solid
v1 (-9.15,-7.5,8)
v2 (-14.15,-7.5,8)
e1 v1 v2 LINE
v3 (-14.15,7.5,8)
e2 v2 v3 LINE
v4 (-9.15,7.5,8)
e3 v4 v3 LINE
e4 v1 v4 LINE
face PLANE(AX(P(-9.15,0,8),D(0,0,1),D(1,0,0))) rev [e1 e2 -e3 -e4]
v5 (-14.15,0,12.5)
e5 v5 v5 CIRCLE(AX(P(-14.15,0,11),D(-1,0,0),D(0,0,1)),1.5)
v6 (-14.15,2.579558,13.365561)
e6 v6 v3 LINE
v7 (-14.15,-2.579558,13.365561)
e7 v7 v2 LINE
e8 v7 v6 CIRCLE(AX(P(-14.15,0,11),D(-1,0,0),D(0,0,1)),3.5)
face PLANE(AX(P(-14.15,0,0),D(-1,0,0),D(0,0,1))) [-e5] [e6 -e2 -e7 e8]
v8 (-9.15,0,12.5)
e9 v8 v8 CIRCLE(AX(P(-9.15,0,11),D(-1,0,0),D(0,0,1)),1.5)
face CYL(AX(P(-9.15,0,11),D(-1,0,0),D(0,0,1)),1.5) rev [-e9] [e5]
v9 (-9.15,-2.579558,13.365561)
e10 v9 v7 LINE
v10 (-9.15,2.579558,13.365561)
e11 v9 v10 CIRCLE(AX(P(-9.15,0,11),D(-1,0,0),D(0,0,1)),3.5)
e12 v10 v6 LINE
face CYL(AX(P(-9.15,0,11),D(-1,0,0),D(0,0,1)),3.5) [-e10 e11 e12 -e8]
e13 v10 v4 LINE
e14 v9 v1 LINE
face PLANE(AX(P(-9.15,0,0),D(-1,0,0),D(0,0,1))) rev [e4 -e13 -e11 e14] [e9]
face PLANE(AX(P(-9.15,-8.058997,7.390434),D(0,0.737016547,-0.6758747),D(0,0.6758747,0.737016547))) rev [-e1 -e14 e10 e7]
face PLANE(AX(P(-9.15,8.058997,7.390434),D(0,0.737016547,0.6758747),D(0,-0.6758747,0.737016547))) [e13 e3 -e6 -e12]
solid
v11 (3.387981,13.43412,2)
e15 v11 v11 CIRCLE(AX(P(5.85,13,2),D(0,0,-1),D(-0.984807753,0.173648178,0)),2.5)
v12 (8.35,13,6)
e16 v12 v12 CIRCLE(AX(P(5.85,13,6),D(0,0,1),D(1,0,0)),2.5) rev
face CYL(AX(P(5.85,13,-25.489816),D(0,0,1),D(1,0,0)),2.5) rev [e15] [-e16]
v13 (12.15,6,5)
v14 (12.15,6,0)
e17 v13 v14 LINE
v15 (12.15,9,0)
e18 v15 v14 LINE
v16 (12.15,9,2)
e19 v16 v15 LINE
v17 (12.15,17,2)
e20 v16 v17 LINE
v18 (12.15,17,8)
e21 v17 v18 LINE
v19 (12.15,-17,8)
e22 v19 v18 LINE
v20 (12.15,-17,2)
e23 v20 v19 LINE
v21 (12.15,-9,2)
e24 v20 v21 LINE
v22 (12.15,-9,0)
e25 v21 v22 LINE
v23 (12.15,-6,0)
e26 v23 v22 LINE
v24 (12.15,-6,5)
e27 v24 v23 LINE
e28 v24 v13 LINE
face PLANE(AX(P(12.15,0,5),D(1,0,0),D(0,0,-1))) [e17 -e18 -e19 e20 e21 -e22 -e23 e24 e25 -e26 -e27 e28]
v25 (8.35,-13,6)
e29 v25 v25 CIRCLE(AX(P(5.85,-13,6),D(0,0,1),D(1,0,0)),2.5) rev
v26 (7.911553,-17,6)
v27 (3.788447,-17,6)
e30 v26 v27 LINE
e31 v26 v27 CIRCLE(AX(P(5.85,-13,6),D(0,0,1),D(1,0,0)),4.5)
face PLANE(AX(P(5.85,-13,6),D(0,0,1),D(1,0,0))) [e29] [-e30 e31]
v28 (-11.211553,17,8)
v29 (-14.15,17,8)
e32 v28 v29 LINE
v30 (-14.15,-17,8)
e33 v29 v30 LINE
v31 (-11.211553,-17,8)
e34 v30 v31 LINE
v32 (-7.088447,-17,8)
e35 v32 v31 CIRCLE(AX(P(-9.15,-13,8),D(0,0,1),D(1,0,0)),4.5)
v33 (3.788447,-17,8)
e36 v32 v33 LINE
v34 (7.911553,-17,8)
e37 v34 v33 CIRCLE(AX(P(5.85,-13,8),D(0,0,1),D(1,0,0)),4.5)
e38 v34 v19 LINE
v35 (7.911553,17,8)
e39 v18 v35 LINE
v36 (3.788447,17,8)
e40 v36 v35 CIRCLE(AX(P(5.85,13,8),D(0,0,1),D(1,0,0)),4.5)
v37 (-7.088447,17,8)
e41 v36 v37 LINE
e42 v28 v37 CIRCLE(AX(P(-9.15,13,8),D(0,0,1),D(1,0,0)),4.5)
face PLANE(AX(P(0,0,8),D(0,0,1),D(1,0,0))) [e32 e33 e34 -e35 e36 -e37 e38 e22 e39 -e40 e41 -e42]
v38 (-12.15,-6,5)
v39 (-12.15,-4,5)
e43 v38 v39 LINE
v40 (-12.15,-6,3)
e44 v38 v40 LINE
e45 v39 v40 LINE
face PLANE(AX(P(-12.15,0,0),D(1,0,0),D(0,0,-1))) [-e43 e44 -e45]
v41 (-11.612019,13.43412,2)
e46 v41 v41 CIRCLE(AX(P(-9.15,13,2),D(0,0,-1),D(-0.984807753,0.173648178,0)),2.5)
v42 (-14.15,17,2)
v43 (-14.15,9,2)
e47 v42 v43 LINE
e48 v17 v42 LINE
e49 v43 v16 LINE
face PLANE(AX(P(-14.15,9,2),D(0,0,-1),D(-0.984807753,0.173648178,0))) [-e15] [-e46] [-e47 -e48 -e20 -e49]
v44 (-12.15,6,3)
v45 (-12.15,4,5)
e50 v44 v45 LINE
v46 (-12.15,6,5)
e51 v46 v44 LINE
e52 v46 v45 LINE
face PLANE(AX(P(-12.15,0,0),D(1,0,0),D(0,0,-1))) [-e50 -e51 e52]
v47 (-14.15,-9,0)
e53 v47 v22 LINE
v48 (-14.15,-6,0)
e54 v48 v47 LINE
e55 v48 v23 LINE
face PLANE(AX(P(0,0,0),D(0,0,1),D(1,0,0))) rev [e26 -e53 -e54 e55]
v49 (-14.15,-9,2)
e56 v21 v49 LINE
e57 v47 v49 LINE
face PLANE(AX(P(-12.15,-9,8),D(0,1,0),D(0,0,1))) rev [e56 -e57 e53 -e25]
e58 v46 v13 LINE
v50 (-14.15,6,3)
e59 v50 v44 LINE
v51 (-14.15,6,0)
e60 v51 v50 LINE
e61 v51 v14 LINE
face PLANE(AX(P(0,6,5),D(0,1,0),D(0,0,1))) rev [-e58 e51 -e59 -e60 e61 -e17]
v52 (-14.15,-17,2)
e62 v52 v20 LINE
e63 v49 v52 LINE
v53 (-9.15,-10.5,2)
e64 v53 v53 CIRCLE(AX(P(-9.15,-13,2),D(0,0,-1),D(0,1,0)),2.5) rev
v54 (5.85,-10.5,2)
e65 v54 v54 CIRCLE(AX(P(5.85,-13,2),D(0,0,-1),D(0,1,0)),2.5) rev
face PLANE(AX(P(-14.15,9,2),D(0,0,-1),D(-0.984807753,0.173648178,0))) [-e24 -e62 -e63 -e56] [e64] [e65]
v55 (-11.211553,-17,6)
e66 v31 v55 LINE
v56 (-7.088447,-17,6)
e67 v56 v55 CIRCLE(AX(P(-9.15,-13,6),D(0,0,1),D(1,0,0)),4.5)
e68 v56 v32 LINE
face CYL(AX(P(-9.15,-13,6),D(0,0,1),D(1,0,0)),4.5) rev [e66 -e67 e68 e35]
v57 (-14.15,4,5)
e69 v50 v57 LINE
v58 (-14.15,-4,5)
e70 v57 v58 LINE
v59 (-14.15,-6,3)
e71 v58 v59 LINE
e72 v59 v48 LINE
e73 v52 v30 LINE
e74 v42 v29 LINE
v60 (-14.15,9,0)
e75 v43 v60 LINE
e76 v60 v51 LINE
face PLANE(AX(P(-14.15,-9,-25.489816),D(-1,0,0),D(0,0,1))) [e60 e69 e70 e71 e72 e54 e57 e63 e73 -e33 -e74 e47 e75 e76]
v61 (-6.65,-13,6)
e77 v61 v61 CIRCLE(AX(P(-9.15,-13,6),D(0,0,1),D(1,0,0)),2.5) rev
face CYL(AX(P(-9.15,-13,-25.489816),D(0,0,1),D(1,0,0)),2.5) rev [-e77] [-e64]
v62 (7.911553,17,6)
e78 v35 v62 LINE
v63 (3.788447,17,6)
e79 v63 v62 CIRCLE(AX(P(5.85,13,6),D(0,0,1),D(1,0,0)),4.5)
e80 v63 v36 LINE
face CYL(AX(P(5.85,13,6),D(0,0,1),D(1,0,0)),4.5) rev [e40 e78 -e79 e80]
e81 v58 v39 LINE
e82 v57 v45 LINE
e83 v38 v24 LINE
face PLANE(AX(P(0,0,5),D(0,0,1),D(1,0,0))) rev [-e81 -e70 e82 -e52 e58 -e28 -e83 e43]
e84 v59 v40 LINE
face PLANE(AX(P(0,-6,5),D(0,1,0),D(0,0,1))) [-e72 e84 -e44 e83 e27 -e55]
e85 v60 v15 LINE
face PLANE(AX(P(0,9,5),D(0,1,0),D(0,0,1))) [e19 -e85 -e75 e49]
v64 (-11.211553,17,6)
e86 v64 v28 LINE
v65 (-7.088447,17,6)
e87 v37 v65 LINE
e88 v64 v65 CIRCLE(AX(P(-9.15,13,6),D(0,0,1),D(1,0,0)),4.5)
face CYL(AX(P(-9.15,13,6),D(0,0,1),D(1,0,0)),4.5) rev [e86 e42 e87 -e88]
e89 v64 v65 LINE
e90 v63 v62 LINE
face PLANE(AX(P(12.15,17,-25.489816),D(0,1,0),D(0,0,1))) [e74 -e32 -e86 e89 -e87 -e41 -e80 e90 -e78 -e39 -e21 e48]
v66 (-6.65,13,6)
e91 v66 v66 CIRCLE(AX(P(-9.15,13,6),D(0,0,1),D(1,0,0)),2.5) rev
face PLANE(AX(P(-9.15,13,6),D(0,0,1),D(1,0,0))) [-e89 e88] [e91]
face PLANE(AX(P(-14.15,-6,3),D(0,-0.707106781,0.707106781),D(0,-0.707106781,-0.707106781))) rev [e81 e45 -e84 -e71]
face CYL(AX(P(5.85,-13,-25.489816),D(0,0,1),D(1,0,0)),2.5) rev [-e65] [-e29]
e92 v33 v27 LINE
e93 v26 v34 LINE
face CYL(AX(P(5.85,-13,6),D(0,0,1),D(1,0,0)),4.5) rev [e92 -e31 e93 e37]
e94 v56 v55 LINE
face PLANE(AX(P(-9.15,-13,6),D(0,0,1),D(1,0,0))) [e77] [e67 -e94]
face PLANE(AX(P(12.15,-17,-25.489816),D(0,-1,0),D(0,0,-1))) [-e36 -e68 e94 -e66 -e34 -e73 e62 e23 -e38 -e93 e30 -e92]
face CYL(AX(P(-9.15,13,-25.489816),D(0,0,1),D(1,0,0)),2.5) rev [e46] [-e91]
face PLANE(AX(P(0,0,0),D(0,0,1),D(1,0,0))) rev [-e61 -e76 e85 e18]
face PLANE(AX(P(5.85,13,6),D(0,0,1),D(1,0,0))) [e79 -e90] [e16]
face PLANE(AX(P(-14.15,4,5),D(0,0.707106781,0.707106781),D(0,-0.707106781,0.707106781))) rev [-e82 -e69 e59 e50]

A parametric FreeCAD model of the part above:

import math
import FreeCAD as App
import Part
import Sketcher
from FreeCAD import Vector
Q = App.Units.Quantity

doc = App.newDocument("Part")
body = doc.addObject("PartDesign::Body", "Body")

# Sketch on XY plane
sketch1 = body.newObject("Sketcher::SketchObject", "Sketch")
sketch1.AttachmentSupport = (doc.getObject("XY_Plane"), [""])
sketch1.MapMode = "FlatFace"
sketch1.addGeometry([
    Part.LineSegment(Vector(-12.2, 9, 0), Vector(-12.2, 6, 0)),
    Part.LineSegment(Vector(-12.2, 6, 0), Vector(12.2, 6, 0)),
    Part.LineSegment(Vector(12.2, 6, 0), Vector(12.2, 9, 0)),
    Part.LineSegment(Vector(12.2, 9, 0), Vector(-12.2, 9, 0)),
], False)
sketch1.addConstraint([
    Sketcher.Constraint("Coincident", 0, 2, 1, 1),
    Sketcher.Constraint("Coincident", 1, 2, 2, 1),
    Sketcher.Constraint("Coincident", 2, 2, 3, 1),
    Sketcher.Constraint("Coincident", 3, 2, 0, 1),
    Sketcher.Constraint("Vertical", 0),
    Sketcher.Constraint("Horizontal", 1),
    Sketcher.Constraint("Vertical", 2),
    Sketcher.Constraint("Horizontal", 3),
    Sketcher.Constraint("DistanceY", 0, 2, 0, 1, Q("3 mm")),
    Sketcher.Constraint("DistanceX", 1, 1, 1, 2, Q("24.3 mm")),
    Sketcher.Constraint("DistanceY", -1, 1, 0, 2, Q("6 mm")),
    Sketcher.Constraint("DistanceX", 0, 2, -1, 1, Q("12.15 mm")),
])
pad1 = body.newObject("PartDesign::Pad", "Pad")
pad1.Profile = sketch1
pad1.Length = 5
body2 = doc.addObject("PartDesign::Body", "Body001")

# Sketch on XY plane
sketch2 = body2.newObject("Sketcher::SketchObject", "Sketch001")
sketch2.AttachmentSupport = (doc.getObject("XY_Plane001"), [""])
sketch2.MapMode = "FlatFace"
sketch2.addGeometry([
    Part.LineSegment(Vector(-12.2, -6, 0), Vector(-12.2, -9, 0)),
    Part.LineSegment(Vector(-12.2, -9, 0), Vector(12.2, -9, 0)),
    Part.LineSegment(Vector(12.2, -9, 0), Vector(12.2, -6, 0)),
    Part.LineSegment(Vector(12.2, -6, 0), Vector(-12.2, -6, 0)),
], False)
sketch2.addConstraint([
    Sketcher.Constraint("Coincident", 0, 2, 1, 1),
    Sketcher.Constraint("Coincident", 1, 2, 2, 1),
    Sketcher.Constraint("Coincident", 2, 2, 3, 1),
    Sketcher.Constraint("Coincident", 3, 2, 0, 1),
    Sketcher.Constraint("Vertical", 0),
    Sketcher.Constraint("Horizontal", 1),
    Sketcher.Constraint("Vertical", 2),
    Sketcher.Constraint("Horizontal", 3),
    Sketcher.Constraint("DistanceY", 0, 2, 0, 1, Q("3 mm")),
    Sketcher.Constraint("DistanceX", 1, 1, 1, 2, Q("24.3 mm")),
    Sketcher.Constraint("DistanceY", 0, 2, -1, 1, Q("9 mm")),
    Sketcher.Constraint("DistanceX", 0, 2, -1, 1, Q("12.15 mm")),
])
pad2 = body2.newObject("PartDesign::Pad", "Pad001")
pad2.Profile = sketch2
pad2.Length = 5
body.AllowCompound = True
doc.recompute()

boolean = body.newObject("PartDesign::Boolean", "Boolean")
boolean.Type = "Fuse"
boolean.addObjects([body2])

# Sketch on XY plane
sketch3 = body.newObject("Sketcher::SketchObject", "Sketch002")
sketch3.AttachmentSupport = (doc.getObject("XY_Plane"), [""])
sketch3.MapMode = "FlatFace"
sketch3.AttachmentOffset = App.Placement(Vector(0, 0, 5), App.Rotation())
sketch3.addGeometry([
    Part.LineSegment(Vector(-12, 9, 0), Vector(-12, -9, 0)),
    Part.LineSegment(Vector(-12, -9, 0), Vector(12, -9, 0)),
    Part.LineSegment(Vector(12, -9, 0), Vector(12, 9, 0)),
    Part.LineSegment(Vector(12, 9, 0), Vector(-12, 9, 0)),
], False)
sketch3.addConstraint([
    Sketcher.Constraint("Coincident", 0, 2, 1, 1),
    Sketcher.Constraint("Coincident", 1, 2, 2, 1),
    Sketcher.Constraint("Coincident", 2, 2, 3, 1),
    Sketcher.Constraint("Coincident", 3, 2, 0, 1),
    Sketcher.Constraint("Vertical", 0),
    Sketcher.Constraint("Horizontal", 1),
    Sketcher.Constraint("Vertical", 2),
    Sketcher.Constraint("Horizontal", 3),
    Sketcher.Constraint("Symmetric", 0, 2, 2, 2, -1, 1),
    Sketcher.Constraint("DistanceY", 0, 2, 0, 1, Q("18 mm")),
    Sketcher.Constraint("DistanceX", 1, 1, 1, 2, Q("24.3 mm")),
])
pad3 = body.newObject("PartDesign::Pad", "Pad002")
pad3.Profile = sketch3
pad3.Length = 3
body3 = doc.addObject("PartDesign::Body", "Body002")

# Sketch on YZ plane
sketch4 = body3.newObject("Sketcher::SketchObject", "Sketch003")
sketch4.AttachmentSupport = (doc.getObject("YZ_Plane002"), [""])
sketch4.MapMode = "FlatFace"
sketch4.AttachmentOffset = App.Placement(Vector(0, 0, -12.15), App.Rotation())
sketch4.addGeometry([
    Part.LineSegment(Vector(-6, 0, 0), Vector(-9, 0, 0)),  # 0
    Part.LineSegment(Vector(-9, 0, 0), Vector(-9, 8, 0)),  # 1
    Part.LineSegment(Vector(-9, 8, 0), Vector(9, 8, 0)),  # 2
    Part.LineSegment(Vector(9, 8, 0), Vector(9, 0, 0)),  # 3
    Part.LineSegment(Vector(9, 0, 0), Vector(6, 0, 0)),  # 4
    Part.LineSegment(Vector(6, 0, 0), Vector(6, 3, 0)),  # 5
    Part.LineSegment(Vector(6, 3, 0), Vector(4, 5, 0)),  # 6
    Part.LineSegment(Vector(4, 5, 0), Vector(-4, 5, 0)),  # 7
    Part.LineSegment(Vector(-4, 5, 0), Vector(-6, 3, 0)),  # 8
    Part.LineSegment(Vector(-6, 3, 0), Vector(-6, 0, 0)),  # 9
], False)
sketch4.addConstraint([
    Sketcher.Constraint("Coincident", 0, 2, 1, 1),
    Sketcher.Constraint("Coincident", 1, 2, 2, 1),
    Sketcher.Constraint("Coincident", 2, 2, 3, 1),
    Sketcher.Constraint("Coincident", 3, 2, 4, 1),
    Sketcher.Constraint("Coincident", 4, 2, 5, 1),
    Sketcher.Constraint("Coincident", 5, 2, 6, 1),
    Sketcher.Constraint("Coincident", 6, 2, 7, 1),
    Sketcher.Constraint("Coincident", 7, 2, 8, 1),
    Sketcher.Constraint("Coincident", 8, 2, 9, 1),
    Sketcher.Constraint("Coincident", 9, 2, 0, 1),
    Sketcher.Constraint("Horizontal", 0),
    Sketcher.Constraint("Vertical", 1),
    Sketcher.Constraint("Horizontal", 2),
    Sketcher.Constraint("Vertical", 3),
    Sketcher.Constraint("Horizontal", 4),
    Sketcher.Constraint("Vertical", 5),
    Sketcher.Constraint("Horizontal", 7),
    Sketcher.Constraint("Vertical", 9),
    Sketcher.Constraint("Symmetric", 0, 2, 3, 2, -1, 1),
    Sketcher.Constraint("Symmetric", 5, 2, 8, 2, -2),
    Sketcher.Constraint("PointOnObject", 0, 2, -1),
    Sketcher.Constraint("Perpendicular", 6, 8),
    Sketcher.Constraint("Equal", 7, 1),
    Sketcher.Constraint("Equal", 4, 5),
    Sketcher.Constraint("Equal", 6, 8),
    Sketcher.Constraint("DistanceX", 0, 2, 0, 1, Q("3 mm")),
    Sketcher.Constraint("DistanceX", 2, 1, 2, 2, Q("18 mm")),
    Sketcher.Constraint("DistanceX", 7, 2, 7, 1, Q("8 mm")),
])
pad4 = body3.newObject("PartDesign::Pad", "Pad003")
pad4.Profile = sketch4
pad4.Length = 2
pad4.Reversed = True
doc.recompute()

boolean2 = body.newObject("PartDesign::Boolean", "Boolean001")
boolean2.Type = "Fuse"
boolean2.addObjects([body3])

# Sketch on XY plane
sketch5 = body.newObject("Sketcher::SketchObject", "Sketch004")
sketch5.AttachmentSupport = (doc.getObject("XY_Plane"), [""])
sketch5.MapMode = "FlatFace"
sketch5.AttachmentOffset = App.Placement(Vector(0, 0, 8), App.Rotation())
sketch5.addGeometry([
    Part.LineSegment(Vector(-14.2, -9, 0), Vector(-14.2, -17, 0)),  # 0
    Part.LineSegment(Vector(-14.2, -17, 0), Vector(12.2, -17, 0)),  # 1
    Part.LineSegment(Vector(12.2, -17, 0), Vector(12.2, -9, 0)),  # 2
    Part.LineSegment(Vector(12.2, -9, 0), Vector(-14.2, -9, 0)),  # 3
    Part.Circle(Vector(-9.2, -13, 0), Vector(0, 0, 1), 2.5),  # 4
    Part.Circle(Vector(5.8, -13, 0), Vector(0, 0, 1), 2.5),  # 5
    Part.LineSegment(Vector(-14.2, 17, 0), Vector(-14.2, 9, 0)),  # 6
    Part.LineSegment(Vector(-14.2, 9, 0), Vector(12.2, 9, 0)),  # 7
    Part.LineSegment(Vector(12.2, 9, 0), Vector(12.2, 17, 0)),  # 8
    Part.LineSegment(Vector(12.2, 17, 0), Vector(-14.2, 17, 0)),  # 9
    Part.Circle(Vector(-9.2, 13, 0), Vector(0, 0, 1), 2.5),  # 10
    Part.Circle(Vector(5.8, 13, 0), Vector(0, 0, 1), 2.5),  # 11
], False)
sketch5.addConstraint([
    Sketcher.Constraint("Coincident", 0, 2, 1, 1),
    Sketcher.Constraint("Coincident", 1, 2, 2, 1),
    Sketcher.Constraint("Coincident", 2, 2, 3, 1),
    Sketcher.Constraint("Coincident", 3, 2, 0, 1),
    Sketcher.Constraint("Coincident", 6, 2, 7, 1),
    Sketcher.Constraint("Coincident", 7, 2, 8, 1),
    Sketcher.Constraint("Coincident", 8, 2, 9, 1),
    Sketcher.Constraint("Coincident", 9, 2, 6, 1),
    Sketcher.Constraint("Vertical", 0),
    Sketcher.Constraint("Horizontal", 1),
    Sketcher.Constraint("Vertical", 2),
    Sketcher.Constraint("Horizontal", 3),
    Sketcher.Constraint("Vertical", 6),
    Sketcher.Constraint("Horizontal", 7),
    Sketcher.Constraint("Vertical", 8),
    Sketcher.Constraint("Horizontal", 9),
    Sketcher.Constraint("Equal", 4, 5),
    Sketcher.Constraint("Equal", 5, 10),
    Sketcher.Constraint("Equal", 10, 11),
    Sketcher.Constraint("Symmetric", 4, 3, 10, 3, -1),
    Sketcher.Constraint("Symmetric", 5, 3, 11, 3, -1),
    Sketcher.Constraint("Symmetric", 3, 2, 6, 2, -1),
    Sketcher.Constraint("Symmetric", 1, 2, 8, 2, -1),
    Sketcher.Constraint("Horizontal", 4, 3, 5, 3),
    Sketcher.Constraint("Diameter", 4, Q("5 mm")),
    Sketcher.Constraint("DistanceY", 0, 2, 0, 1, Q("8 mm")),
    Sketcher.Constraint("DistanceX", 1, 1, 1, 2, Q("26.3 mm")),
    Sketcher.Constraint("DistanceY", 4, 3, -1, 1, Q("13 mm")),
    Sketcher.Constraint("DistanceY", 0, 2, -1, 1, Q("17 mm")),
    Sketcher.Constraint("DistanceX", 4, 3, 5, 3, Q("15 mm")),
    Sketcher.Constraint("DistanceX", 0, 2, 4, 3, Q("5 mm")),
    Sketcher.Constraint("DistanceX", 4, 3, -1, 1, Q("9.15 mm")),
])
pad5 = body.newObject("PartDesign::Pad", "Pad004")
pad5.Profile = sketch5
pad5.Length = 6
pad5.Reversed = True

# Sketch on XY plane
sketch6 = body.newObject("Sketcher::SketchObject", "Sketch005")
sketch6.AttachmentSupport = (doc.getObject("XY_Plane"), [""])
sketch6.MapMode = "FlatFace"
sketch6.AttachmentOffset = App.Placement(Vector(0, 0, 8), App.Rotation())
sketch6.addGeometry([
    Part.Circle(Vector(5.8, 13, 0), Vector(0, 0, 1), 4.5),
    Part.Circle(Vector(5.8, -13, 0), Vector(0, 0, 1), 4.5),
    Part.Circle(Vector(-9.2, -13, 0), Vector(0, 0, 1), 4.5),
    Part.Circle(Vector(-9.2, 13, 0), Vector(0, 0, 1), 4.5),
], False)
sketch6.addConstraint([
    Sketcher.Constraint("Equal", 0, 1),
    Sketcher.Constraint("Equal", 1, 2),
    Sketcher.Constraint("Equal", 2, 3),
    Sketcher.Constraint("Symmetric", 0, 3, 1, 3, -1),
    Sketcher.Constraint("Symmetric", 2, 3, 3, 3, -1),
    Sketcher.Constraint("Horizontal", 1, 3, 2, 3),
    Sketcher.Constraint("Diameter", 0, Q("9 mm")),
    Sketcher.Constraint("DistanceY", -1, 1, 0, 3, Q("13 mm")),
    Sketcher.Constraint("DistanceX", 2, 3, 1, 3, Q("15 mm")),
    Sketcher.Constraint("DistanceX", -1, 1, 0, 3, Q("5.85 mm")),
])
pocket1 = body.newObject("PartDesign::Pocket", "Pocket")
pocket1.Profile = sketch6
pocket1.Length = 2
body4 = doc.addObject("PartDesign::Body", "Body003")

# Sketch on YZ plane
sketch7 = body4.newObject("Sketcher::SketchObject", "Sketch006")
sketch7.AttachmentSupport = (doc.getObject("YZ_Plane003"), [""])
sketch7.MapMode = "FlatFace"
sketch7.AttachmentOffset = App.Placement(Vector(0, 0, -14.15), App.Rotation())
sketch7.addGeometry([
    Part.LineSegment(Vector(-7.5, 8, 0), Vector(-2.6, 13.4, 0)),  # 0
    Part.ArcOfCircle(Part.Circle(Vector(0, 11, 0), Vector(0, 0, 1), 3.5), math.radians(90), math.radians(137)),  # 1
    Part.ArcOfCircle(Part.Circle(Vector(0, 11, 0), Vector(0, 0, 1), 3.5), math.radians(43), math.radians(90)),  # 2
    Part.LineSegment(Vector(2.6, 13.4, 0), Vector(7.5, 8, 0)),  # 3
    Part.LineSegment(Vector(7.5, 8, 0), Vector(-7.5, 8, 0)),  # 4
    Part.Circle(Vector(0, 11, 0), Vector(0, 0, 1), 1.5),  # 5
], False)
sketch7.addConstraint([
    Sketcher.Constraint("Tangent", 0, 2, 1, 2),
    Sketcher.Constraint("Tangent", 1, 1, 2, 2),
    Sketcher.Constraint("Tangent", 2, 1, 3, 1),
    Sketcher.Constraint("Coincident", 3, 2, 4, 1),
    Sketcher.Constraint("Coincident", 4, 2, 0, 1),
    Sketcher.Constraint("Horizontal", 4),
    Sketcher.Constraint("Coincident", 5, 3, 1, 3),
    Sketcher.Constraint("Equal", 1, 2),
    Sketcher.Constraint("Symmetric", 0, 2, 2, 1, -2),
    Sketcher.Constraint("PointOnObject", 1, 1, -2),
    Sketcher.Constraint("Diameter", 5, Q("3 mm")),
    Sketcher.Constraint("Radius", 1, Q("3.5 mm")),
    Sketcher.Constraint("DistanceX", 4, 2, 4, 1, Q("15 mm")),
    Sketcher.Constraint("DistanceY", -1, 1, 1, 3, Q("11 mm")),
    Sketcher.Constraint("DistanceY", -1, 1, 3, 2, Q("8 mm")),
])
pad6 = body4.newObject("PartDesign::Pad", "Pad005")
pad6.Profile = sketch7
pad6.Length = 5

doc.recompute()
